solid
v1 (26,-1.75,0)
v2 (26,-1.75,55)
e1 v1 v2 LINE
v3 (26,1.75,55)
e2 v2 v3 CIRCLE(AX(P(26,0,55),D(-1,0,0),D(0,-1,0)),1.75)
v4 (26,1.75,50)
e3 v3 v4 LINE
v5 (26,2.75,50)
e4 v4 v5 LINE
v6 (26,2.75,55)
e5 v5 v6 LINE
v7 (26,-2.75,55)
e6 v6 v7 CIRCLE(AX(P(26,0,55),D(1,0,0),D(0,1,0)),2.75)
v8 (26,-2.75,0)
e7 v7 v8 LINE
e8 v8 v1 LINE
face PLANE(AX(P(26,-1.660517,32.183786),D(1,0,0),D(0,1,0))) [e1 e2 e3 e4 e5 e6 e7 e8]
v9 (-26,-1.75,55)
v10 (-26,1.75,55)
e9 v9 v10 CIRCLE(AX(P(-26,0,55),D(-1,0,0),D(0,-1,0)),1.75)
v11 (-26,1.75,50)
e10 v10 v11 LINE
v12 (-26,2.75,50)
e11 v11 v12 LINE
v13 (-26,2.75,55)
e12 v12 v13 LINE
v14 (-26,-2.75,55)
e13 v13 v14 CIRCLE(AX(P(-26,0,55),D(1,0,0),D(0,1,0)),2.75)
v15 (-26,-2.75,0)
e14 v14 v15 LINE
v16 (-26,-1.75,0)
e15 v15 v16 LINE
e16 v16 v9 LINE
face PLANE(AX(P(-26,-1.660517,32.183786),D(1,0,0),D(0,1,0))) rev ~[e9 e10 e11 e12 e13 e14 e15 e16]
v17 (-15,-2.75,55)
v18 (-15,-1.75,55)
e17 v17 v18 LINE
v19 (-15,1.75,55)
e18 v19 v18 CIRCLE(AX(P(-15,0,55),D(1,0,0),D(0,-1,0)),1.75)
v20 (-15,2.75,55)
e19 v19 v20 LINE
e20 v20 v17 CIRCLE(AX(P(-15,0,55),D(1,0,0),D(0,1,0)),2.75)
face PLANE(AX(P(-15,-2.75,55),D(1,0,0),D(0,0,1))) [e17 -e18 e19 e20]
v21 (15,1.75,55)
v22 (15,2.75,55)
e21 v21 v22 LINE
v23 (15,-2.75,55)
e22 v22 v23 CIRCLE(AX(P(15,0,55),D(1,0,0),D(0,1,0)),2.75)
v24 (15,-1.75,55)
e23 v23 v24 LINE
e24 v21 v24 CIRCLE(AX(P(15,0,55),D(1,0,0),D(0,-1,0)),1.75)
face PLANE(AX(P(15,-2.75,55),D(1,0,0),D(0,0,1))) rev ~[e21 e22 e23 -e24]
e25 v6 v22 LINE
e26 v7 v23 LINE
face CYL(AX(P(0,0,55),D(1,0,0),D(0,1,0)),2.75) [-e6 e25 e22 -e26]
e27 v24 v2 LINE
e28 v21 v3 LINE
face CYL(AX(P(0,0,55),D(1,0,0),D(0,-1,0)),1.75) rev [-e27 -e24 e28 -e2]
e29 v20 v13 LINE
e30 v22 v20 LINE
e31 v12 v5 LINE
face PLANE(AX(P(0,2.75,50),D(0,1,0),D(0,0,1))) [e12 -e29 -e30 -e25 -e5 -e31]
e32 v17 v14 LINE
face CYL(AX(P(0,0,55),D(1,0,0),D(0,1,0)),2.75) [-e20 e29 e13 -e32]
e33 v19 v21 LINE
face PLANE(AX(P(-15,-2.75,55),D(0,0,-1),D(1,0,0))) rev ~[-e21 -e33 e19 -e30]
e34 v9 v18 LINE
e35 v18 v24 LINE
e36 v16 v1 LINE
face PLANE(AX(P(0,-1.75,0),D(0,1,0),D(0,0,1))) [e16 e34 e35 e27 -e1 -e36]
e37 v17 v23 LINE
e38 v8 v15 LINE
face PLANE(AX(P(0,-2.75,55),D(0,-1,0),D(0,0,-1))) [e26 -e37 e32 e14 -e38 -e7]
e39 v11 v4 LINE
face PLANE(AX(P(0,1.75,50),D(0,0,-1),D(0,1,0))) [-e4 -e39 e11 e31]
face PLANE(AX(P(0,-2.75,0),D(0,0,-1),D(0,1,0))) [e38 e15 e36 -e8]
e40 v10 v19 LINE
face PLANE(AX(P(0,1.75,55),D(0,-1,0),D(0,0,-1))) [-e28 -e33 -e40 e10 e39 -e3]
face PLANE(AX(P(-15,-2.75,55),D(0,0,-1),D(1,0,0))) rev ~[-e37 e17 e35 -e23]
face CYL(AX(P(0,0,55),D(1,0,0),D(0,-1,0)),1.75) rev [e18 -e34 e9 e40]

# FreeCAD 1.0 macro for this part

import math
import FreeCAD as App
import Part
import Sketcher
from FreeCAD import Vector

doc = App.newDocument("Part")
body = doc.addObject("PartDesign::Body", "Body")

# Sketch on YZ plane
sketch1 = body.newObject("Sketcher::SketchObject", "Sketch")
sketch1.AttachmentSupport = (doc.getObject("YZ_Plane"), [""])
sketch1.MapMode = "FlatFace"
sketch1.addGeometry(Part.LineSegment(Vector(-2.8, 0, 0), Vector(-1.8, 0, 0)), False)
sketch1.addGeometry(Part.LineSegment(Vector(-1.8, 0, 0), Vector(-1.8, 55, 0)), False)
sketch1.addGeometry(Part.ArcOfCircle(Part.Circle(Vector(0, 55, 0), Vector(0, 0, 1), 1.8), math.radians(0), math.radians(180)), False)
sketch1.addGeometry(Part.LineSegment(Vector(1.8, 55, 0), Vector(1.8, 50, 0)), False)
sketch1.addGeometry(Part.LineSegment(Vector(1.8, 50, 0), Vector(2.8, 50, 0)), False)
sketch1.addGeometry(Part.LineSegment(Vector(2.8, 50, 0), Vector(2.8, 55, 0)), False)
sketch1.addGeometry(Part.ArcOfCircle(Part.Circle(Vector(0, 55, 0), Vector(0, 0, 1), 2.8), math.radians(0), math.radians(180)), False)
sketch1.addGeometry(Part.LineSegment(Vector(-2.8, 55, 0), Vector(-2.8, 0, 0)), False)
sketch1.addConstraint(Sketcher.Constraint("Coincident", 0, 2, 1, 1))
sketch1.addConstraint(Sketcher.Constraint("Tangent", 1, 2, 2, 2))
sketch1.addConstraint(Sketcher.Constraint("Tangent", 2, 1, 3, 1))
sketch1.addConstraint(Sketcher.Constraint("Coincident", 3, 2, 4, 1))
sketch1.addConstraint(Sketcher.Constraint("Coincident", 4, 2, 5, 1))
sketch1.addConstraint(Sketcher.Constraint("Tangent", 5, 2, 6, 1))
sketch1.addConstraint(Sketcher.Constraint("Tangent", 6, 2, 7, 1))
sketch1.addConstraint(Sketcher.Constraint("Coincident", 7, 2, 0, 1))
sketch1.addConstraint(Sketcher.Constraint("Horizontal", 0))
sketch1.addConstraint(Sketcher.Constraint("Vertical", 1))
sketch1.addConstraint(Sketcher.Constraint("Vertical", 3))
sketch1.addConstraint(Sketcher.Constraint("Horizontal", 4))
sketch1.addConstraint(Sketcher.Constraint("Vertical", 5))
sketch1.addConstraint(Sketcher.Constraint("Vertical", 7))
sketch1.addConstraint(Sketcher.Constraint("Coincident", 6, 3, 2, 3))
sketch1.addConstraint(Sketcher.Constraint("PointOnObject", 2, 3, -2))
sketch1.addConstraint(Sketcher.Constraint("PointOnObject", 0, 2, -1))
sketch1.addConstraint(Sketcher.Constraint("DistanceX", 0, 1, 0, 2, 1.0))
sketch1.addConstraint(Sketcher.Constraint("DistanceY", 1, 1, 1, 2, 55.0))
sketch1.addConstraint(Sketcher.Constraint("DistanceY", 3, 2, 3, 1, 5.0))
sketch1.addConstraint(Sketcher.Constraint("Radius", 2, 1.75))
pad1 = body.newObject("PartDesign::Pad", "Pad")
pad1.Profile = sketch1
pad1.Length = 52
pad1.Midplane = True

# Sketch on XZ plane
sketch2 = body.newObject("Sketcher::SketchObject", "Sketch001")
sketch2.AttachmentSupport = (doc.getObject("XZ_Plane"), [""])
sketch2.MapMode = "FlatFace"
sketch2.AttachmentOffset = App.Placement(Vector(0, 0, 2.75), App.Rotation())
sketch2.addGeometry(Part.LineSegment(Vector(-15, 64, 0), Vector(-15, 55, 0)), False)
sketch2.addGeometry(Part.LineSegment(Vector(-15, 55, 0), Vector(15, 55, 0)), False)
sketch2.addGeometry(Part.LineSegment(Vector(15, 55, 0), Vector(15, 64, 0)), False)
sketch2.addGeometry(Part.LineSegment(Vector(15, 64, 0), Vector(-15, 64, 0)), False)
sketch2.addConstraint(Sketcher.Constraint("Coincident", 0, 2, 1, 1))
sketch2.addConstraint(Sketcher.Constraint("Coincident", 1, 2, 2, 1))
sketch2.addConstraint(Sketcher.Constraint("Coincident", 2, 2, 3, 1))
sketch2.addConstraint(Sketcher.Constraint("Coincident", 3, 2, 0, 1))
sketch2.addConstraint(Sketcher.Constraint("Vertical", 0))
sketch2.addConstraint(Sketcher.Constraint("Horizontal", 1))
sketch2.addConstraint(Sketcher.Constraint("Vertical", 2))
sketch2.addConstraint(Sketcher.Constraint("Horizontal", 3))
sketch2.addConstraint(Sketcher.Constraint("DistanceX", 1, 1, 1, 2, 30.0))
sketch2.addConstraint(Sketcher.Constraint("DistanceY", 0, 2, 0, 1, 9.0))
sketch2.addConstraint(Sketcher.Constraint("DistanceX", 0, 2, -1, 1, 15.0))
sketch2.addConstraint(Sketcher.Constraint("DistanceY", -1, 1, 0, 2, 55.0))
pocket1 = body.newObject("PartDesign::Pocket", "Pocket")
pocket1.Profile = sketch2
pocket1.Length = 25

doc.recompute()
